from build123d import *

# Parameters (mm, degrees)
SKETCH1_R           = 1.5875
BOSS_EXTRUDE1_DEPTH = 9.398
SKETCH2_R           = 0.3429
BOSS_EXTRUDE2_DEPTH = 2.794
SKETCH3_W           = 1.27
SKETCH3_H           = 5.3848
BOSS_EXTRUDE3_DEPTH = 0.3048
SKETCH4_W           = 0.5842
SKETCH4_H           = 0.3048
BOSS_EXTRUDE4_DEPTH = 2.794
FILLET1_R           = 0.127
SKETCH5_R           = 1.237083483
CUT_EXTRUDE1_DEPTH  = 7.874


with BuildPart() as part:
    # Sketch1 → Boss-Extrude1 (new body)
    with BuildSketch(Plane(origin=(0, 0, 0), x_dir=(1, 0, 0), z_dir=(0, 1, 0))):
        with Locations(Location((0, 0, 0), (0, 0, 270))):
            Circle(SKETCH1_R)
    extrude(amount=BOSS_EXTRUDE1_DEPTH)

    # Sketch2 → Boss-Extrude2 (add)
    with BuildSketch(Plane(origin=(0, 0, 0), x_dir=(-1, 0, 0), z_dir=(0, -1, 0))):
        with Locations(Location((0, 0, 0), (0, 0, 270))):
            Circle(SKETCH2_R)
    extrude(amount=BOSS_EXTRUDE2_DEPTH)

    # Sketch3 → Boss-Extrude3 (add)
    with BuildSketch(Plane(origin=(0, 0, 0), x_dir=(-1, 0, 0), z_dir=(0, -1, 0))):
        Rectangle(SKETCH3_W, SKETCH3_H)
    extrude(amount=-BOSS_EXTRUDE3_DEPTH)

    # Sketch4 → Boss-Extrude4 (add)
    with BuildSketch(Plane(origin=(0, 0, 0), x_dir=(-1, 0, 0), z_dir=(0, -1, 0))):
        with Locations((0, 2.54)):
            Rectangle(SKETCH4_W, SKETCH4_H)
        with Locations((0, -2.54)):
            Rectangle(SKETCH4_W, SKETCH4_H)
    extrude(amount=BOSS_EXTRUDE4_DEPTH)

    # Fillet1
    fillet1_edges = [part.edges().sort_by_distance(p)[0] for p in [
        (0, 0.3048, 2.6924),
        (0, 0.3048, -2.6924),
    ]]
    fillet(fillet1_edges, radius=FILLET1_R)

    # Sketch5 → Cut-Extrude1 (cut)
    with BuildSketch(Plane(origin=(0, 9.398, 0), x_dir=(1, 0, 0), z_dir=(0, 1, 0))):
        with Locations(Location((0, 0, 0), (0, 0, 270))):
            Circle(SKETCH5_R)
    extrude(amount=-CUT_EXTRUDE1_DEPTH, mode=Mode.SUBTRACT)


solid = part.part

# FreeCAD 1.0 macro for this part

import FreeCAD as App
import Part
import Sketcher
Q = App.Units.Quantity


def edges_at(feature, points):
    """Names of the edges that pass closest to the given points."""
    edges = feature.Shape.Edges
    near = lambda p: min(range(len(edges)), key=lambda i: edges[i].distToShape(Part.Vertex(*p))[0])
    return sorted({f"Edge{near(p) + 1}" for p in points})

doc = App.newDocument("Part")
body = doc.addObject("PartDesign::Body", "Body")

# Sketch on XZ plane
sketch1 = body.newObject("Sketcher::SketchObject", "Sketch")
sketch1.AttachmentSupport = (doc.getObject("XZ_Plane"), [""])
sketch1.MapMode = "FlatFace"
sketch1.addGeometry(Part.Circle(App.Vector(0, 0, 0), App.Vector(0, 0, 1), 1.5875), False)
sketch1.addConstraint(Sketcher.Constraint("Coincident", 0, 3, -1, 1))
sketch1.addConstraint(Sketcher.Constraint("Diameter", 0, Q("0.125 in")))
pad1 = body.newObject("PartDesign::Pad", "Pad")
pad1.Profile = sketch1
pad1.Length = Q("0.37 in")
pad1.Reversed = True

# Sketch on XZ plane
sketch2 = body.newObject("Sketcher::SketchObject", "Sketch001")
sketch2.AttachmentSupport = (doc.getObject("XZ_Plane"), [""])
sketch2.MapMode = "FlatFace"
sketch2.addGeometry(Part.Circle(App.Vector(0, 0, 0), App.Vector(0, 0, 1), 0.3429), False)
sketch2.addConstraint(Sketcher.Constraint("Coincident", 0, 3, -1, 1))
sketch2.addConstraint(Sketcher.Constraint("Diameter", 0, Q("0.027 in")))
pad2 = body.newObject("PartDesign::Pad", "Pad001")
pad2.Profile = sketch2
pad2.Length = Q("0.11 in")

# Sketch on XZ plane
sketch3 = body.newObject("Sketcher::SketchObject", "Sketch002")
sketch3.AttachmentSupport = (doc.getObject("XZ_Plane"), [""])
sketch3.MapMode = "FlatFace"
sketch3.addGeometry(Part.LineSegment(App.Vector(0.635, -2.6924, 0), App.Vector(0.635, 2.6924, 0)), False)
sketch3.addGeometry(Part.LineSegment(App.Vector(0.635, 2.6924, 0), App.Vector(-0.635, 2.6924, 0)), False)
sketch3.addGeometry(Part.LineSegment(App.Vector(-0.635, 2.6924, 0), App.Vector(-0.635, -2.6924, 0)), False)
sketch3.addGeometry(Part.LineSegment(App.Vector(-0.635, -2.6924, 0), App.Vector(0.635, -2.6924, 0)), False)
sketch3.addConstraint(Sketcher.Constraint("Coincident", 0, 2, 1, 1))
sketch3.addConstraint(Sketcher.Constraint("Coincident", 1, 2, 2, 1))
sketch3.addConstraint(Sketcher.Constraint("Coincident", 2, 2, 3, 1))
sketch3.addConstraint(Sketcher.Constraint("Coincident", 3, 2, 0, 1))
sketch3.addConstraint(Sketcher.Constraint("Vertical", 0))
sketch3.addConstraint(Sketcher.Constraint("Horizontal", 1))
sketch3.addConstraint(Sketcher.Constraint("Vertical", 2))
sketch3.addConstraint(Sketcher.Constraint("Horizontal", 3))
sketch3.addConstraint(Sketcher.Constraint("Symmetric", 0, 2, 2, 2, -1, 1))
sketch3.addConstraint(Sketcher.Constraint("DistanceX", 1, 2, 1, 1, Q("0.05 in")))
sketch3.addConstraint(Sketcher.Constraint("DistanceY", 0, 1, 0, 2, Q("0.212 in")))
pad3 = body.newObject("PartDesign::Pad", "Pad002")
pad3.Profile = sketch3
pad3.Length = Q("0.012 in")
pad3.Reversed = True

# Sketch on XZ plane
sketch4 = body.newObject("Sketcher::SketchObject", "Sketch003")
sketch4.AttachmentSupport = (doc.getObject("XZ_Plane"), [""])
sketch4.MapMode = "FlatFace"
sketch4.addGeometry(Part.LineSegment(App.Vector(0.2921, -2.6924, 0), App.Vector(0.2921, -2.3876, 0)), False)
sketch4.addGeometry(Part.LineSegment(App.Vector(0.2921, -2.3876, 0), App.Vector(-0.2921, -2.3876, 0)), False)
sketch4.addGeometry(Part.LineSegment(App.Vector(-0.2921, -2.3876, 0), App.Vector(-0.2921, -2.6924, 0)), False)
sketch4.addGeometry(Part.LineSegment(App.Vector(-0.2921, -2.6924, 0), App.Vector(0.2921, -2.6924, 0)), False)
sketch4.addGeometry(Part.LineSegment(App.Vector(0.2921, 2.3876, 0), App.Vector(0.2921, 2.6924, 0)), False)
sketch4.addGeometry(Part.LineSegment(App.Vector(0.2921, 2.6924, 0), App.Vector(-0.2921, 2.6924, 0)), False)
sketch4.addGeometry(Part.LineSegment(App.Vector(-0.2921, 2.6924, 0), App.Vector(-0.2921, 2.3876, 0)), False)
sketch4.addGeometry(Part.LineSegment(App.Vector(-0.2921, 2.3876, 0), App.Vector(0.2921, 2.3876, 0)), False)
sketch4.addConstraint(Sketcher.Constraint("Coincident", 0, 2, 1, 1))
sketch4.addConstraint(Sketcher.Constraint("Coincident", 1, 2, 2, 1))
sketch4.addConstraint(Sketcher.Constraint("Coincident", 2, 2, 3, 1))
sketch4.addConstraint(Sketcher.Constraint("Coincident", 3, 2, 0, 1))
sketch4.addConstraint(Sketcher.Constraint("Coincident", 4, 2, 5, 1))
sketch4.addConstraint(Sketcher.Constraint("Coincident", 5, 2, 6, 1))
sketch4.addConstraint(Sketcher.Constraint("Coincident", 6, 2, 7, 1))
sketch4.addConstraint(Sketcher.Constraint("Coincident", 7, 2, 4, 1))
sketch4.addConstraint(Sketcher.Constraint("Vertical", 0))
sketch4.addConstraint(Sketcher.Constraint("Horizontal", 1))
sketch4.addConstraint(Sketcher.Constraint("Vertical", 2))
sketch4.addConstraint(Sketcher.Constraint("Horizontal", 3))
sketch4.addConstraint(Sketcher.Constraint("Vertical", 4))
sketch4.addConstraint(Sketcher.Constraint("Horizontal", 5))
sketch4.addConstraint(Sketcher.Constraint("Vertical", 6))
sketch4.addConstraint(Sketcher.Constraint("Horizontal", 7))
sketch4.addConstraint(Sketcher.Constraint("Symmetric", 2, 2, 4, 2, -1, 1))
sketch4.addConstraint(Sketcher.Constraint("Symmetric", 0, 2, 6, 2, -1, 1))
sketch4.addConstraint(Sketcher.Constraint("Vertical", 3, 2, 4, 2))
sketch4.addConstraint(Sketcher.Constraint("DistanceY", 0, 2, 4, 2, Q("0.2 in")))
sketch4.addConstraint(Sketcher.Constraint("DistanceX", 1, 2, 1, 1, Q("0.023 in")))
sketch4.addConstraint(Sketcher.Constraint("DistanceY", 0, 1, 0, 2, Q("0.012 in")))
pad4 = body.newObject("PartDesign::Pad", "Pad003")
pad4.Profile = sketch4
pad4.Length = Q("0.11 in")
doc.recompute()

fillet = body.newObject("PartDesign::Fillet", "Fillet")
fillet.Base = (pad4, edges_at(pad4, [(0, 0.305, 2.692), (0, 0.305, -2.692)]))
fillet.Radius = Q("0.005 in")

# Sketch on XZ plane
sketch5 = body.newObject("Sketcher::SketchObject", "Sketch004")
sketch5.AttachmentSupport = (doc.getObject("XZ_Plane"), [""])
sketch5.MapMode = "FlatFace"
sketch5.AttachmentOffset = App.Placement(App.Vector(0, 0, -0.37 * 25.4), App.Rotation())
sketch5.addGeometry(Part.Circle(App.Vector(0, 0, 0), App.Vector(0, 0, 1), 1.237083), False)
sketch5.addConstraint(Sketcher.Constraint("Coincident", 0, 3, -1, 1))
sketch5.addConstraint(Sketcher.Constraint("Diameter", 0, Q("2.474167 mm")))
pocket1 = body.newObject("PartDesign::Pocket", "Pocket")
pocket1.Profile = sketch5
pocket1.Length = Q("0.31 in")
pocket1.Reversed = True

doc.recompute()
